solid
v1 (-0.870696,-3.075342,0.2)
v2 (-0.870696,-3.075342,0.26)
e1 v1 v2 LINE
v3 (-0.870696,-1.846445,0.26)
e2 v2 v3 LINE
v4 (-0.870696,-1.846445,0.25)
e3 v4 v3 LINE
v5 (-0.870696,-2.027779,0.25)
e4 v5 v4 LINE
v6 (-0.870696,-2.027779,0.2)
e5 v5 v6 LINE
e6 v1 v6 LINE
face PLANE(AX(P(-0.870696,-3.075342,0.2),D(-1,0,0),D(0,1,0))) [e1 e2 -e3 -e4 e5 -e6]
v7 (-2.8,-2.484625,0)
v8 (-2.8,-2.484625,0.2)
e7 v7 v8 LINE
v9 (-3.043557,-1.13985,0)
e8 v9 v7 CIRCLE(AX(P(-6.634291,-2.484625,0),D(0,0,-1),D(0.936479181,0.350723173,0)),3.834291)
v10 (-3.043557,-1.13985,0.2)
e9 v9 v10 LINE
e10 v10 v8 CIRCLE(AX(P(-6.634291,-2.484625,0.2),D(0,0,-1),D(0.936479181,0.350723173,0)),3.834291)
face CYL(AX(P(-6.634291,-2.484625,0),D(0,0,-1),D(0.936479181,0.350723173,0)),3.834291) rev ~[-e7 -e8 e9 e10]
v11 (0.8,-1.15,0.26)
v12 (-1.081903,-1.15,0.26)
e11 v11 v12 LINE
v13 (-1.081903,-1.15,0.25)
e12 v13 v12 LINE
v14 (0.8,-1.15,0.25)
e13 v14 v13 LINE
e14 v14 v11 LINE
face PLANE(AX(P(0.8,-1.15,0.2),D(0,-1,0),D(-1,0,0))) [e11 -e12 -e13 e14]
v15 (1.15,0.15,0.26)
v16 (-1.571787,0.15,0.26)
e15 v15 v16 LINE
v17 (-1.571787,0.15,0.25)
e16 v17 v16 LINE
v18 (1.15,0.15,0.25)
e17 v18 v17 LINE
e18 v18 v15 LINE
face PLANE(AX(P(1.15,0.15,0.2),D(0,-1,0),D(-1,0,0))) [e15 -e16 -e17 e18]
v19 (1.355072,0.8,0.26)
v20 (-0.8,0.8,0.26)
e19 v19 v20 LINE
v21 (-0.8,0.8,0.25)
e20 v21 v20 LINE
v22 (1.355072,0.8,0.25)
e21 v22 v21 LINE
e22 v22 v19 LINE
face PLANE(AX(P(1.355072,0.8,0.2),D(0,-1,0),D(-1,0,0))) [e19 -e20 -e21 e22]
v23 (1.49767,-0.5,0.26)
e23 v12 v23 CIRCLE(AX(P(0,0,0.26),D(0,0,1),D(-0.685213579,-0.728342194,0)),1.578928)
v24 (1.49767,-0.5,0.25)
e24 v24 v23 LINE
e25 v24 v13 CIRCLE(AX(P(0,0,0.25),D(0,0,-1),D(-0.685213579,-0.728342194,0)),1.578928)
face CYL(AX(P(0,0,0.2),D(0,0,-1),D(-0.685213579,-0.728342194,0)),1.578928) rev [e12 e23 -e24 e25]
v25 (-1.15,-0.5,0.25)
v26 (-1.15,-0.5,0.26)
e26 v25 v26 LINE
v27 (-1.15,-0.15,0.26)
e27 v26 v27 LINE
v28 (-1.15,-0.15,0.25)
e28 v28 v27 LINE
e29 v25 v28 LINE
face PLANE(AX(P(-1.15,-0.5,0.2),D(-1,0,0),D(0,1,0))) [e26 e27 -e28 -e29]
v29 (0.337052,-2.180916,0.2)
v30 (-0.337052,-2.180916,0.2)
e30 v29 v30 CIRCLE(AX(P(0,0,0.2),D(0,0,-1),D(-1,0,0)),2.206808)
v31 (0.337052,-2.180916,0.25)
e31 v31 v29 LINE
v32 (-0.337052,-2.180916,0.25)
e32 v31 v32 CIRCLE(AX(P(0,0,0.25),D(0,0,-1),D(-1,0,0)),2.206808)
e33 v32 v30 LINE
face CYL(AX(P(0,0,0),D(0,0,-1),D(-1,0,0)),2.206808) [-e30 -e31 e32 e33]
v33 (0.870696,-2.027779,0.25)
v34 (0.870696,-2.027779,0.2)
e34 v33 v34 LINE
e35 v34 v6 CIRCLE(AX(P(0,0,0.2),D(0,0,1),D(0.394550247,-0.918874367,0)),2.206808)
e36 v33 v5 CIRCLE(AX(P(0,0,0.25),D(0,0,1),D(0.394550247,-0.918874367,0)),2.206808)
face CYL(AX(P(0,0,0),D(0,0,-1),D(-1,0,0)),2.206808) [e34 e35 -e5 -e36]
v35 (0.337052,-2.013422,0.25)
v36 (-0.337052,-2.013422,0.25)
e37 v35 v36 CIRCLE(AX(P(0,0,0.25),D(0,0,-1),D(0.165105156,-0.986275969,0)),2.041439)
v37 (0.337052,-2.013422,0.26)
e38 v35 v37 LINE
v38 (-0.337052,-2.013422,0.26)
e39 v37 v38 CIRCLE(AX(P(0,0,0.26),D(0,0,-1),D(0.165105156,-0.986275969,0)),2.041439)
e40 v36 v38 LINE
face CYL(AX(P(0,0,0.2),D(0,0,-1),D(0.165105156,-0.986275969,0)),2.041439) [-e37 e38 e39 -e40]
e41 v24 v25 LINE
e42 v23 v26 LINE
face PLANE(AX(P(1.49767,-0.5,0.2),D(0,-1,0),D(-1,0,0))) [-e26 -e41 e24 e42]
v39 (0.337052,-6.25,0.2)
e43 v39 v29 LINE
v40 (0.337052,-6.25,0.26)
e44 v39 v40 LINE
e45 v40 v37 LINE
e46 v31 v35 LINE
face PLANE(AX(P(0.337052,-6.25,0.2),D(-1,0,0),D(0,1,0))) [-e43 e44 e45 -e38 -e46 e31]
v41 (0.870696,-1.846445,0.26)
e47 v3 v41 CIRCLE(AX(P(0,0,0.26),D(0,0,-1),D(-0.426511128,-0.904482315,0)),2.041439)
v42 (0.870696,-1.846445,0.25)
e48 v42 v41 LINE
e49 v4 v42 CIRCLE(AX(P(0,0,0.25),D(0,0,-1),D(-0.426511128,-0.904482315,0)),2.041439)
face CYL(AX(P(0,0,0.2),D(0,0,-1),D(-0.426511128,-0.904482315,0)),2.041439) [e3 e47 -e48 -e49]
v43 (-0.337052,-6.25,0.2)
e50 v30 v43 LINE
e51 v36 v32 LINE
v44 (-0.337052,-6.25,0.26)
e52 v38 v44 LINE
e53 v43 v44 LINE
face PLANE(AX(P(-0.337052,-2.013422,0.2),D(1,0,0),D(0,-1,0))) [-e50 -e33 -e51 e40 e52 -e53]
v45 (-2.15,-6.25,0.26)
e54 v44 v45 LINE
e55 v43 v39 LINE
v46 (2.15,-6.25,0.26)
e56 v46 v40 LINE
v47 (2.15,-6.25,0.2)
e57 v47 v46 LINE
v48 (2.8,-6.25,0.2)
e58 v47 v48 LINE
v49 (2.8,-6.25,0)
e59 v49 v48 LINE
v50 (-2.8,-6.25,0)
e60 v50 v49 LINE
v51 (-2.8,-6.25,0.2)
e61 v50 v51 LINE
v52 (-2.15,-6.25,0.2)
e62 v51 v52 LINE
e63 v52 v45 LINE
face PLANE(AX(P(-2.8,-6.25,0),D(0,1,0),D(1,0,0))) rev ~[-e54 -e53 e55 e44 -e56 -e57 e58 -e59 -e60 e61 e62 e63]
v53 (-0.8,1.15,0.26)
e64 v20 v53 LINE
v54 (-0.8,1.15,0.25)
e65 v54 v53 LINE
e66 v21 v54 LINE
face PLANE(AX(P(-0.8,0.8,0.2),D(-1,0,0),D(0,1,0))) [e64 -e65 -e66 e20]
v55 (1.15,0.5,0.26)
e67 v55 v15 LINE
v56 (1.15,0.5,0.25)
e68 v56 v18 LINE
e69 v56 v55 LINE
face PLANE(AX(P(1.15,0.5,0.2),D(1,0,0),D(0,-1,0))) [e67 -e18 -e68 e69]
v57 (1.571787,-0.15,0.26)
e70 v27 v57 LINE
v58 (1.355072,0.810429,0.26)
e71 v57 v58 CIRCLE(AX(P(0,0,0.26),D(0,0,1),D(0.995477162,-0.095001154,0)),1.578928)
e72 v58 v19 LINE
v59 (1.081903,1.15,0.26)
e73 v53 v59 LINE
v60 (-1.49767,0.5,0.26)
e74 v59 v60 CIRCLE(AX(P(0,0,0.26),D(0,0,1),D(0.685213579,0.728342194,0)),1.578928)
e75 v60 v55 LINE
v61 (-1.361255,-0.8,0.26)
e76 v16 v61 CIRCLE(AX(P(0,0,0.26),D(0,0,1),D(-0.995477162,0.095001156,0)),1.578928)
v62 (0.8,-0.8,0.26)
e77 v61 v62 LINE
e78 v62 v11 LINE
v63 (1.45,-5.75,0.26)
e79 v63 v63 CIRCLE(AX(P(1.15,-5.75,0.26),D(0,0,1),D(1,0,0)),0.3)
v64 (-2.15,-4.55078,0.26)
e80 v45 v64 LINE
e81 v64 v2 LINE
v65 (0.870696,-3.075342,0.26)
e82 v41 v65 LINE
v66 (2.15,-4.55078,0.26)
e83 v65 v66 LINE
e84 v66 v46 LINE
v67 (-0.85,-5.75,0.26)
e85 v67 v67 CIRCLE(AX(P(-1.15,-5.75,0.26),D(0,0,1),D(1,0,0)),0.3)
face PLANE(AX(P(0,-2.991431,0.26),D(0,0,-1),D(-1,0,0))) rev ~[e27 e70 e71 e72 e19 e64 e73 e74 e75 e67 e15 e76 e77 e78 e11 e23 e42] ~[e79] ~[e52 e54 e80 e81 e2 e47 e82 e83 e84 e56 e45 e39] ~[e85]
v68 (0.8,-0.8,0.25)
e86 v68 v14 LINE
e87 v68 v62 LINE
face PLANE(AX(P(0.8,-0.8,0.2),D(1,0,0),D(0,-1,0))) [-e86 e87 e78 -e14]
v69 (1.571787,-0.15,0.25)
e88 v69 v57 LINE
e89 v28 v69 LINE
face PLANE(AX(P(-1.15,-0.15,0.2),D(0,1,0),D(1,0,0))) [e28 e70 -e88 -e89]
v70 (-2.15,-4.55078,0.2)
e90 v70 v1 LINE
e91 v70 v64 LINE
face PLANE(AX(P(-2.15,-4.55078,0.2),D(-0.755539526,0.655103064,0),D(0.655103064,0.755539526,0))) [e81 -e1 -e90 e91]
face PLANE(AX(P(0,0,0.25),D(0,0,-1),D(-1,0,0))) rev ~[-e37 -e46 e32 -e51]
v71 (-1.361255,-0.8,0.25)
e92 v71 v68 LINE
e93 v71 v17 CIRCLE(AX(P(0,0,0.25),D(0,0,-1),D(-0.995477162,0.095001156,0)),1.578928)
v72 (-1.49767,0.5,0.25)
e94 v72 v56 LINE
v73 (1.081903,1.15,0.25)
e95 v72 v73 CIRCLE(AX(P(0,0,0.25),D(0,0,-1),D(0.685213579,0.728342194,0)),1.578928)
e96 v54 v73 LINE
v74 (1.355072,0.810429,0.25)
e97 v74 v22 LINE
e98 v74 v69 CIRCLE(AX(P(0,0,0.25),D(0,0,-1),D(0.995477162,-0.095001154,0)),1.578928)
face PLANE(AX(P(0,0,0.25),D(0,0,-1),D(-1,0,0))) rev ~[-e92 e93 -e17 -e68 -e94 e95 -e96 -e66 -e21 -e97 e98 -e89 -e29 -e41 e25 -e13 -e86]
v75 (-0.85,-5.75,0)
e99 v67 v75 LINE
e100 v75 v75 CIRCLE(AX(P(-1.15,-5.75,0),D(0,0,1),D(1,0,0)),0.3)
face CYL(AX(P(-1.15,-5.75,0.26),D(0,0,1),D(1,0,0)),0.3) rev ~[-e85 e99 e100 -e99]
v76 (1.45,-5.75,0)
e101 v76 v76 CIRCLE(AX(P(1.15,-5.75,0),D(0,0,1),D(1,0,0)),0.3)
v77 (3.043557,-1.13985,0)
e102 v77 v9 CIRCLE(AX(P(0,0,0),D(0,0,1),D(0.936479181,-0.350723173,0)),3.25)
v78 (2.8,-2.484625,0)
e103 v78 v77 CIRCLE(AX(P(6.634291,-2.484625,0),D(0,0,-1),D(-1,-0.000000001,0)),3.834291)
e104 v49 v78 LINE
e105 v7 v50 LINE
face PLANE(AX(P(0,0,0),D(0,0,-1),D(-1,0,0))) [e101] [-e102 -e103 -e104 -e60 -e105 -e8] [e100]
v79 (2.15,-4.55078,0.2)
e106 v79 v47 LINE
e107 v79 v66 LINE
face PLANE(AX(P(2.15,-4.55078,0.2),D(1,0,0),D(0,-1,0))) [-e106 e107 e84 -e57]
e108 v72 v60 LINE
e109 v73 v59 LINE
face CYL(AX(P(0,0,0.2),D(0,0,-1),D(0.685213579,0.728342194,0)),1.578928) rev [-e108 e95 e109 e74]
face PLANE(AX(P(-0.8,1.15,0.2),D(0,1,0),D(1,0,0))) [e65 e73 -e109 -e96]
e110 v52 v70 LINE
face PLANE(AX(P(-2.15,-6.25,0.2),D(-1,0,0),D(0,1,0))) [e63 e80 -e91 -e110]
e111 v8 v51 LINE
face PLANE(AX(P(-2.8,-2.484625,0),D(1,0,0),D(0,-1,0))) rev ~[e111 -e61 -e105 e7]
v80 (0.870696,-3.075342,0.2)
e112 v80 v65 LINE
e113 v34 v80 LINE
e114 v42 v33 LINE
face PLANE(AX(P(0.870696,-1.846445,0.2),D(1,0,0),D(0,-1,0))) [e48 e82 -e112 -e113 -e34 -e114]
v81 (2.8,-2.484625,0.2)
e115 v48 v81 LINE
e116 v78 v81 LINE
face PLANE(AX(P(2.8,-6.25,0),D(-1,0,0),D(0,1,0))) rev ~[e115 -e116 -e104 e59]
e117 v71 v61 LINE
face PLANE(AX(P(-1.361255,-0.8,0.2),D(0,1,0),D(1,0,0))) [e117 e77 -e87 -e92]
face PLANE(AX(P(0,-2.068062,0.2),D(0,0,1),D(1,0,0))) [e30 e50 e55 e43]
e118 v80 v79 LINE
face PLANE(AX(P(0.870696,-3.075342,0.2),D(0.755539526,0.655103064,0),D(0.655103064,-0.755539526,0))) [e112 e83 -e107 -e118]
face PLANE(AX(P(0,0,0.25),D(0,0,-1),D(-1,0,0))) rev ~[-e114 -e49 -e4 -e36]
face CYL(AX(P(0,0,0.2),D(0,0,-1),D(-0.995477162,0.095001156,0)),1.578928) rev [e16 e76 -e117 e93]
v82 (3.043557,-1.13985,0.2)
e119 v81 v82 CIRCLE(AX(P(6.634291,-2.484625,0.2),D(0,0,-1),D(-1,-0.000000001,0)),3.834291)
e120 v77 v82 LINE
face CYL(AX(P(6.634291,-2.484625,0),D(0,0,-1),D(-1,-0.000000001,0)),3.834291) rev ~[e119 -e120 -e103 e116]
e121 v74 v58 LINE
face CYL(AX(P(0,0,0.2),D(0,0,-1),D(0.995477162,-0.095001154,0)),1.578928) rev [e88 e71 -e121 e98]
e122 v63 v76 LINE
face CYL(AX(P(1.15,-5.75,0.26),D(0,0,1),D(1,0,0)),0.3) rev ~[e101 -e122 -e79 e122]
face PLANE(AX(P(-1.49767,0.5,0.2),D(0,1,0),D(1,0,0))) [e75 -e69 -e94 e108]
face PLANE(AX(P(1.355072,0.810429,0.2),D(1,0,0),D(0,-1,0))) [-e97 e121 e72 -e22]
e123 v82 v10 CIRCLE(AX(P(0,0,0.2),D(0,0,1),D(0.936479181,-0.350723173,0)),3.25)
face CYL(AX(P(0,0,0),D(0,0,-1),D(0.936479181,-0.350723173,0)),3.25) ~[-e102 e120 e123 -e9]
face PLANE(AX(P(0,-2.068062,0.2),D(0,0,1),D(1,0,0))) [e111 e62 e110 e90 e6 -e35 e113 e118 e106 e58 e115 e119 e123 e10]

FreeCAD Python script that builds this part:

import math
import FreeCAD as App
import Part
import Sketcher

V = App.Vector
Q = App.Units.Quantity

doc = App.newDocument("Part")
body = doc.addObject("PartDesign::Body", "Body")

sketch1 = body.newObject("Sketcher::SketchObject", "Sketch")
sketch1.AttachmentSupport = (doc.getObject("XY_Plane"), [""])
sketch1.MapMode = "FlatFace"
sketch1.addGeometry(Part.LineSegment(V(-2.8, -6.2, 0), V(2.8, -6.2, 0)), False)
sketch1.addGeometry(Part.LineSegment(V(2.8, -6.2, 0), V(2.8, -2.5, 0)), False)
sketch1.addGeometry(Part.ArcOfCircle(Part.Circle(V(6.6, -2.5, 0), V(0, 0, 1), 3.8), math.radians(159), math.radians(180)), False)
sketch1.addGeometry(Part.ArcOfCircle(Part.Circle(V(0, 0, 0), V(0, 0, 1), 3.2), math.radians(-21), math.radians(201)), False)
sketch1.addGeometry(Part.ArcOfCircle(Part.Circle(V(-6.6, -2.5, 0), V(0, 0, 1), 3.8), math.radians(0), math.radians(21)), False)
sketch1.addGeometry(Part.LineSegment(V(-2.8, -2.5, 0), V(-2.8, -6.2, 0)), False)
sketch1.addConstraint(Sketcher.Constraint("Coincident", 0, 2, 1, 1))
sketch1.addConstraint(Sketcher.Constraint("Tangent", 1, 2, 2, 2))
sketch1.addConstraint(Sketcher.Constraint("Tangent", 2, 1, 3, 1))
sketch1.addConstraint(Sketcher.Constraint("Tangent", 3, 2, 4, 2))
sketch1.addConstraint(Sketcher.Constraint("Tangent", 4, 1, 5, 1))
sketch1.addConstraint(Sketcher.Constraint("Coincident", 5, 2, 0, 1))
sketch1.addConstraint(Sketcher.Constraint("Horizontal", 0))
sketch1.addConstraint(Sketcher.Constraint("Vertical", 1))
sketch1.addConstraint(Sketcher.Constraint("Vertical", 5))
sketch1.addConstraint(Sketcher.Constraint("Coincident", 3, 3, -1, 1))
sketch1.addConstraint(Sketcher.Constraint("Equal", 2, 4))
sketch1.addConstraint(Sketcher.Constraint("Horizontal", 2, 3, 4, 3))
sketch1.addConstraint(Sketcher.Constraint("Radius", 3, Q("3.25 mm")))
sketch1.addConstraint(Sketcher.Constraint("DistanceX", 0, 1, 0, 2, Q("5.6 mm")))
sketch1.addConstraint(Sketcher.Constraint("DistanceY", 0, 2, -1, 1, Q("6.25 mm")))
sketch1.addConstraint(Sketcher.Constraint("Radius", 2, Q("3.834291 mm")))
pad1 = body.newObject("PartDesign::Pad", "Pad")
pad1.Profile = sketch1
pad1.Length = 0.2

sketch2 = body.newObject("Sketcher::SketchObject", "Sketch001")
sketch2.AttachmentSupport = (doc.getObject("XY_Plane"), [""])
sketch2.MapMode = "FlatFace"
sketch2.addGeometry(Part.Circle(V(0, 0, 0), V(0, 0, 1), 2.2), False)
sketch2.addConstraint(Sketcher.Constraint("Coincident", 0, 3, -1, 1))
sketch2.addConstraint(Sketcher.Constraint("Diameter", 0, Q("4.413615 mm")))
pad2 = body.newObject("PartDesign::Pad", "Pad001")
pad2.Profile = sketch2
pad2.Length = 0.25

sketch3 = body.newObject("Sketcher::SketchObject", "Sketch002")
sketch3.AttachmentSupport = (doc.getObject("XY_Plane"), [""])
sketch3.MapMode = "FlatFace"
sketch3.AttachmentOffset = App.Placement(V(0, 0, 0.2), App.Rotation())
sketch3.addGeometry(Part.LineSegment(V(0.871, -3.075, 0), V(0.871, -1.846, 0)), False)
sketch3.addGeometry(Part.ArcOfCircle(Part.Circle(V(0, 0, 0), V(0, 0, 1), 2.041), math.radians(-65), math.radians(245)), False)
sketch3.addGeometry(Part.LineSegment(V(-0.871, -1.846, 0), V(-0.871, -3.075, 0)), False)
sketch3.addGeometry(Part.LineSegment(V(-0.871, -3.075, 0), V(-2.15, -4.551, 0)), False)
sketch3.addGeometry(Part.LineSegment(V(-2.15, -4.551, 0), V(-2.15, -6.25, 0)), False)
sketch3.addGeometry(Part.LineSegment(V(-2.15, -6.25, 0), V(-0.337, -6.25, 0)), False)
sketch3.addGeometry(Part.LineSegment(V(-0.337, -6.25, 0), V(-0.337, -2.013, 0)), False)
sketch3.addGeometry(Part.ArcOfCircle(Part.Circle(V(0, 0, 0), V(0, 0, 1), 2.041), math.radians(-99.5), math.radians(-80.5)), False)
sketch3.addGeometry(Part.LineSegment(V(0.337, -2.013, 0), V(0.337, -6.25, 0)), False)
sketch3.addGeometry(Part.LineSegment(V(0.337, -6.25, 0), V(2.15, -6.25, 0)), False)
sketch3.addGeometry(Part.LineSegment(V(2.15, -6.25, 0), V(2.15, -4.551, 0)), False)
sketch3.addGeometry(Part.LineSegment(V(2.15, -4.551, 0), V(0.871, -3.075, 0)), False)
sketch3.addGeometry(Part.LineSegment(V(-0.8, 1.15, 0), V(-0.8, 0.8, 0)), False)
sketch3.addGeometry(Part.LineSegment(V(-0.8, 0.8, 0), V(1.355, 0.8, 0)), False)
sketch3.addGeometry(Part.LineSegment(V(1.355, 0.8, 0), V(1.355, 0.81, 0)), False)
sketch3.addGeometry(Part.ArcOfCircle(Part.Circle(V(0, 0, 0), V(0, 0, 1), 1.579), math.radians(-5), math.radians(31)), False)
sketch3.addGeometry(Part.LineSegment(V(1.572, -0.15, 0), V(-1.15, -0.15, 0)), False)
sketch3.addGeometry(Part.LineSegment(V(-1.15, -0.15, 0), V(-1.15, -0.5, 0)), False)
sketch3.addGeometry(Part.LineSegment(V(-1.15, -0.5, 0), V(1.498, -0.5, 0)), False)
sketch3.addGeometry(Part.ArcOfCircle(Part.Circle(V(0, 0, 0), V(0, 0, 1), 1.579), math.radians(-133), math.radians(-18)), False)
sketch3.addGeometry(Part.LineSegment(V(-1.082, -1.15, 0), V(0.8, -1.15, 0)), False)
sketch3.addGeometry(Part.LineSegment(V(0.8, -1.15, 0), V(0.8, -0.8, 0)), False)
sketch3.addGeometry(Part.LineSegment(V(0.8, -0.8, 0), V(-1.361, -0.8, 0)), False)
sketch3.addGeometry(Part.ArcOfCircle(Part.Circle(V(0, 0, 0), V(0, 0, 1), 1.579), math.radians(175), math.radians(210)), False)
sketch3.addGeometry(Part.LineSegment(V(-1.572, 0.15, 0), V(1.15, 0.15, 0)), False)
sketch3.addGeometry(Part.LineSegment(V(1.15, 0.15, 0), V(1.15, 0.5, 0)), False)
sketch3.addGeometry(Part.LineSegment(V(1.15, 0.5, 0), V(-1.498, 0.5, 0)), False)
sketch3.addGeometry(Part.ArcOfCircle(Part.Circle(V(0, 0, 0), V(0, 0, 1), 1.579), math.radians(47), math.radians(162)), False)
sketch3.addGeometry(Part.LineSegment(V(1.082, 1.15, 0), V(-0.8, 1.15, 0)), False)
sketch3.addConstraint(Sketcher.Constraint("Coincident", 0, 2, 1, 1))
sketch3.addConstraint(Sketcher.Constraint("Coincident", 1, 2, 2, 1))
sketch3.addConstraint(Sketcher.Constraint("Coincident", 2, 2, 3, 1))
sketch3.addConstraint(Sketcher.Constraint("Coincident", 3, 2, 4, 1))
sketch3.addConstraint(Sketcher.Constraint("Coincident", 4, 2, 5, 1))
sketch3.addConstraint(Sketcher.Constraint("Coincident", 5, 2, 6, 1))
sketch3.addConstraint(Sketcher.Constraint("Coincident", 6, 2, 7, 1))
sketch3.addConstraint(Sketcher.Constraint("Coincident", 7, 2, 8, 1))
sketch3.addConstraint(Sketcher.Constraint("Coincident", 8, 2, 9, 1))
sketch3.addConstraint(Sketcher.Constraint("Coincident", 9, 2, 10, 1))
sketch3.addConstraint(Sketcher.Constraint("Coincident", 10, 2, 11, 1))
sketch3.addConstraint(Sketcher.Constraint("Coincident", 11, 2, 0, 1))
sketch3.addConstraint(Sketcher.Constraint("Coincident", 12, 2, 13, 1))
sketch3.addConstraint(Sketcher.Constraint("Coincident", 13, 2, 14, 1))
sketch3.addConstraint(Sketcher.Constraint("Coincident", 14, 2, 15, 2))
sketch3.addConstraint(Sketcher.Constraint("Coincident", 15, 1, 16, 1))
sketch3.addConstraint(Sketcher.Constraint("Coincident", 16, 2, 17, 1))
sketch3.addConstraint(Sketcher.Constraint("Coincident", 17, 2, 18, 1))
sketch3.addConstraint(Sketcher.Constraint("Coincident", 18, 2, 19, 2))
sketch3.addConstraint(Sketcher.Constraint("Coincident", 19, 1, 20, 1))
sketch3.addConstraint(Sketcher.Constraint("Coincident", 20, 2, 21, 1))
sketch3.addConstraint(Sketcher.Constraint("Coincident", 21, 2, 22, 1))
sketch3.addConstraint(Sketcher.Constraint("Coincident", 22, 2, 23, 2))
sketch3.addConstraint(Sketcher.Constraint("Coincident", 23, 1, 24, 1))
sketch3.addConstraint(Sketcher.Constraint("Coincident", 24, 2, 25, 1))
sketch3.addConstraint(Sketcher.Constraint("Coincident", 25, 2, 26, 1))
sketch3.addConstraint(Sketcher.Constraint("Coincident", 26, 2, 27, 2))
sketch3.addConstraint(Sketcher.Constraint("Coincident", 27, 1, 28, 1))
sketch3.addConstraint(Sketcher.Constraint("Coincident", 28, 2, 12, 1))
sketch3.addConstraint(Sketcher.Constraint("Vertical", 0))
sketch3.addConstraint(Sketcher.Constraint("Vertical", 2))
sketch3.addConstraint(Sketcher.Constraint("Vertical", 4))
sketch3.addConstraint(Sketcher.Constraint("Horizontal", 5))
sketch3.addConstraint(Sketcher.Constraint("Vertical", 6))
sketch3.addConstraint(Sketcher.Constraint("Vertical", 8))
sketch3.addConstraint(Sketcher.Constraint("Horizontal", 9))
sketch3.addConstraint(Sketcher.Constraint("Vertical", 10))
sketch3.addConstraint(Sketcher.Constraint("Vertical", 12))
sketch3.addConstraint(Sketcher.Constraint("Horizontal", 13))
sketch3.addConstraint(Sketcher.Constraint("Vertical", 14))
sketch3.addConstraint(Sketcher.Constraint("Horizontal", 16))
sketch3.addConstraint(Sketcher.Constraint("Vertical", 17))
sketch3.addConstraint(Sketcher.Constraint("Horizontal", 18))
sketch3.addConstraint(Sketcher.Constraint("Horizontal", 20))
sketch3.addConstraint(Sketcher.Constraint("Vertical", 21))
sketch3.addConstraint(Sketcher.Constraint("Horizontal", 22))
sketch3.addConstraint(Sketcher.Constraint("Horizontal", 24))
sketch3.addConstraint(Sketcher.Constraint("Vertical", 25))
sketch3.addConstraint(Sketcher.Constraint("Horizontal", 26))
sketch3.addConstraint(Sketcher.Constraint("Horizontal", 28))
sketch3.addConstraint(Sketcher.Constraint("Coincident", 1, 3, -1, 1))
sketch3.addConstraint(Sketcher.Constraint("Coincident", 7, 3, -1, 1))
sketch3.addConstraint(Sketcher.Constraint("Coincident", 15, 3, -1, 1))
sketch3.addConstraint(Sketcher.Constraint("Coincident", 19, 3, -1, 1))
sketch3.addConstraint(Sketcher.Constraint("Coincident", 23, 3, -1, 1))
sketch3.addConstraint(Sketcher.Constraint("Coincident", 27, 3, -1, 1))
sketch3.addConstraint(Sketcher.Constraint("Equal", 1, 7))
sketch3.addConstraint(Sketcher.Constraint("Equal", 15, 19))
sketch3.addConstraint(Sketcher.Constraint("Equal", 19, 23))
sketch3.addConstraint(Sketcher.Constraint("Equal", 23, 27))
sketch3.addConstraint(Sketcher.Constraint("Symmetric", 12, 2, 21, 2, -1, 1))
sketch3.addConstraint(Sketcher.Constraint("Symmetric", 16, 2, 24, 2, -1, 1))
sketch3.addConstraint(Sketcher.Constraint("Symmetric", 5, 2, 8, 2, -2))
sketch3.addConstraint(Sketcher.Constraint("Symmetric", 3, 2, 10, 2, -2))
sketch3.addConstraint(Sketcher.Constraint("Symmetric", 2, 2, 11, 2, -2))
sketch3.addConstraint(Sketcher.Constraint("Equal", 18, 26))
sketch3.addConstraint(Sketcher.Constraint("Equal", 20, 28))
sketch3.addConstraint(Sketcher.Constraint("Equal", 12, 17))
sketch3.addConstraint(Sketcher.Constraint("DistanceY", 19, 1, 16, 2, Q("1 mm")))
sketch3.addConstraint(Sketcher.Constraint("DistanceY", 18, 2, 25, 2, Q("1 mm")))
sketch3.addConstraint(Sketcher.Constraint("DistanceY", 12, 2, 12, 1, Q("0.35 mm")))
sketch3.addConstraint(Sketcher.Constraint("DistanceX", 12, 2, -1, 1, Q("0.8 mm")))
sketch3.addConstraint(Sketcher.Constraint("DistanceX", 4, 2, 9, 2, Q("4.3 mm")))
sketch3.addConstraint(Sketcher.Constraint("DistanceY", 4, 2, -1, 1, Q("6.25 mm")))
sketch3.addConstraint(Sketcher.Constraint("DistanceX", 16, 2, -1, 1, Q("1.15 mm")))
sketch3.addConstraint(Sketcher.Constraint("Radius", 1, Q("2.041439 mm")))
sketch3.addConstraint(Sketcher.Constraint("Radius", 15, Q("1.578928 mm")))
sketch3.addConstraint(Sketcher.Constraint("DistanceX", 13, 1, 13, 2, Q("2.155072 mm")))
sketch3.addConstraint(Sketcher.Constraint("DistanceY", 4, 2, 4, 1, Q("1.69922 mm")))
sketch3.addConstraint(Sketcher.Constraint("DistanceX", 5, 1, 5, 2, Q("1.812948 mm")))
sketch3.addConstraint(Sketcher.Constraint("DistanceY", 0, 1, 0, 2, Q("1.228896 mm")))
sketch3.addConstraint(Sketcher.Constraint("DistanceY", 2, 2, -1, 1, Q("3.075342 mm")))
pad3 = body.newObject("PartDesign::Pad", "Pad002")
pad3.Profile = sketch3
pad3.Length = 0.06

sketch4 = body.newObject("Sketcher::SketchObject", "Sketch003")
sketch4.AttachmentSupport = (doc.getObject("XY_Plane"), [""])
sketch4.MapMode = "FlatFace"
sketch4.AttachmentOffset = App.Placement(V(0, 0, 0.26), App.Rotation())
sketch4.addGeometry(Part.Circle(V(-1.15, -5.75, 0), V(0, 0, 1), 0.3), False)
sketch4.addGeometry(Part.Circle(V(1.15, -5.75, 0), V(0, 0, 1), 0.3), False)
sketch4.addConstraint(Sketcher.Constraint("Equal", 0, 1))
sketch4.addConstraint(Sketcher.Constraint("Symmetric", 0, 3, 1, 3, -2))
sketch4.addConstraint(Sketcher.Constraint("Diameter", 0, Q("0.6 mm")))
sketch4.addConstraint(Sketcher.Constraint("DistanceX", 0, 3, 1, 3, Q("2.3 mm")))
sketch4.addConstraint(Sketcher.Constraint("DistanceY", 0, 3, -1, 1, Q("5.75 mm")))
pocket1 = body.newObject("PartDesign::Pocket", "Pocket")
pocket1.Profile = sketch4
pocket1.Type = "ThroughAll"

doc.recompute()
